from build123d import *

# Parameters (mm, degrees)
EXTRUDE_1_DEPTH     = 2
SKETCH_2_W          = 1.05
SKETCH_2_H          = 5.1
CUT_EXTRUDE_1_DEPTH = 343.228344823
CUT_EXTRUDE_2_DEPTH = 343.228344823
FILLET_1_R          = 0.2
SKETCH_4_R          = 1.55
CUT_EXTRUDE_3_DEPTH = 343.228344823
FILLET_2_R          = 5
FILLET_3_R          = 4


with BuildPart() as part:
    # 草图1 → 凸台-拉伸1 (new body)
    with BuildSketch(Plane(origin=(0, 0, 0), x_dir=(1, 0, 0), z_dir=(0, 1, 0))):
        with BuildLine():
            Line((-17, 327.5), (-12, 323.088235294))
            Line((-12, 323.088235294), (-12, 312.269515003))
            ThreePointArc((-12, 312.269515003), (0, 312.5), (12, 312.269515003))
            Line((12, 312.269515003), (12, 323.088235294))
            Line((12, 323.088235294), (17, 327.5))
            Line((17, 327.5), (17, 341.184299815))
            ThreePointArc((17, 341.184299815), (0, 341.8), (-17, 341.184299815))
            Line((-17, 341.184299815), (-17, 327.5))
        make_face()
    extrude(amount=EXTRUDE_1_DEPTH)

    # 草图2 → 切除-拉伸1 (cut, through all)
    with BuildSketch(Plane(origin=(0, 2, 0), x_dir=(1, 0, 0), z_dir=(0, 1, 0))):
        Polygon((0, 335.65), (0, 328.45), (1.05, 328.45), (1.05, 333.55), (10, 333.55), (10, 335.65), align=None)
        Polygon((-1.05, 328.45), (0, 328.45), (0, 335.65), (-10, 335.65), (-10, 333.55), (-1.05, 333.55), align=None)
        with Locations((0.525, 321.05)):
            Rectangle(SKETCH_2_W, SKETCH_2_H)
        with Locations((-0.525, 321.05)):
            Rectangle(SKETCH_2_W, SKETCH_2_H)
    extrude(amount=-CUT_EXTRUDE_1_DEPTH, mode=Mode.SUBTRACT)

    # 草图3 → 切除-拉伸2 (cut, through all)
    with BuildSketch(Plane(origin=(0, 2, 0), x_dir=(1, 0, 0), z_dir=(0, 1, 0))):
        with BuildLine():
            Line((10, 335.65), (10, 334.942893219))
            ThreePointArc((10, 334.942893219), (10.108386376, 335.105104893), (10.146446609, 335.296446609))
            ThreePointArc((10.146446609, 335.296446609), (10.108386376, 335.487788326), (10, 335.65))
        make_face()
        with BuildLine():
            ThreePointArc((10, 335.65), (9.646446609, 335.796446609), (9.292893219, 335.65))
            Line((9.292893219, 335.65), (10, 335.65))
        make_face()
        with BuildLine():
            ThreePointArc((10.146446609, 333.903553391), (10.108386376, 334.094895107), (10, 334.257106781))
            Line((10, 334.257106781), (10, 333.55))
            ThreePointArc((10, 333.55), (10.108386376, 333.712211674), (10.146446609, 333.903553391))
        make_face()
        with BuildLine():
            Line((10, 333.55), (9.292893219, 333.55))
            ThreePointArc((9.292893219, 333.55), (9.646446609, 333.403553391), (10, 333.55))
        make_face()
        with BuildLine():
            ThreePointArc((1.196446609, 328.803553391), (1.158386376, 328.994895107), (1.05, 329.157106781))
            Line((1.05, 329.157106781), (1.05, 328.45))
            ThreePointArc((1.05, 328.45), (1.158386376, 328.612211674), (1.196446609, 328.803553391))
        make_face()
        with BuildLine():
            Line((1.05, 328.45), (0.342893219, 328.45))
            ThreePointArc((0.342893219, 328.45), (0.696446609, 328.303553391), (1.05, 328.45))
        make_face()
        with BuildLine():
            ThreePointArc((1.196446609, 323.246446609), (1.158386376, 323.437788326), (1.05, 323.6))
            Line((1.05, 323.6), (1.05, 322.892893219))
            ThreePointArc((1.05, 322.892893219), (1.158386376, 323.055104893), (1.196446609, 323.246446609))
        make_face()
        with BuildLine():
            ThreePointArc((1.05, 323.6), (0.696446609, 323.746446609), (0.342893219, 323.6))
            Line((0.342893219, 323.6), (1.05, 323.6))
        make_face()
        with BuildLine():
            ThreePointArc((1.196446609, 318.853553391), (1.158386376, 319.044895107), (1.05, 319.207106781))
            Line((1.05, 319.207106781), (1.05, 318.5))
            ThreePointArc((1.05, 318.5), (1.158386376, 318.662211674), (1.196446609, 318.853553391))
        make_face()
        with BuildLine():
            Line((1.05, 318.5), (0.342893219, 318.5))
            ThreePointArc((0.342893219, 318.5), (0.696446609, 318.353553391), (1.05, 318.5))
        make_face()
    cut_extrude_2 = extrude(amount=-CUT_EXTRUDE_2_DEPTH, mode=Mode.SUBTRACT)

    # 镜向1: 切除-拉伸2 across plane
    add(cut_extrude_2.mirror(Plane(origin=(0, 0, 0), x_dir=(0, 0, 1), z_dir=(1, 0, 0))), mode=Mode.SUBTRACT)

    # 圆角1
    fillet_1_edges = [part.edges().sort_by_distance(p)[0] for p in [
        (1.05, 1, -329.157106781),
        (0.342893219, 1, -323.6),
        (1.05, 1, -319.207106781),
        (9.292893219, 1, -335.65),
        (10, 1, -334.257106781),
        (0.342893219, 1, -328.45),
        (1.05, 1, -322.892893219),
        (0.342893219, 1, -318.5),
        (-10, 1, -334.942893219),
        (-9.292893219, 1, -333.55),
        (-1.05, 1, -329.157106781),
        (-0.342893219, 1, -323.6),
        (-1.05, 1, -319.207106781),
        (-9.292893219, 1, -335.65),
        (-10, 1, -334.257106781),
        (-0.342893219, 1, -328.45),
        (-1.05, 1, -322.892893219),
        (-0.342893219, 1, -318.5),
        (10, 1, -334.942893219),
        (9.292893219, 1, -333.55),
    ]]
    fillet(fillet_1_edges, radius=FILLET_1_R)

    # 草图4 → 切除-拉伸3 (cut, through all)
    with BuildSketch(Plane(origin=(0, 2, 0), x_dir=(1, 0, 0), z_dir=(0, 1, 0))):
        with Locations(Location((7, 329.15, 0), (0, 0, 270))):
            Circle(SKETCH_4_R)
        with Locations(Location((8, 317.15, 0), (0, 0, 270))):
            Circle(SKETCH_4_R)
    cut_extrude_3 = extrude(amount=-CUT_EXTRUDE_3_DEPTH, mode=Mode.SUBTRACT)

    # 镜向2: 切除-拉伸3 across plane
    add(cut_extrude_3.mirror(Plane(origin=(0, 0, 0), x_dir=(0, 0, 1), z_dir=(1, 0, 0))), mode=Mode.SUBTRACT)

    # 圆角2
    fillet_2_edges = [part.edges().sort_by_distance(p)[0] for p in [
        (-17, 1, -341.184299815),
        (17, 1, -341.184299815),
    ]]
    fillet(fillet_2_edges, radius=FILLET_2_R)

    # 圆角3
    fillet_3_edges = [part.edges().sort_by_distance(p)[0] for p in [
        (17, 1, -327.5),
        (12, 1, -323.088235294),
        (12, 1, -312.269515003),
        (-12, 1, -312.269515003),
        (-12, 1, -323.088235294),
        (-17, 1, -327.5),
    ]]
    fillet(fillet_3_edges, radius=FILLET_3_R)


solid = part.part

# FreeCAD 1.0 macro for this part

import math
import FreeCAD as App
import Part
import Sketcher

V = App.Vector
Q = App.Units.Quantity


def edges_at(feature, points):
    """Names of the edges that pass closest to the given points."""
    edges = feature.Shape.Edges
    near = lambda p: min(range(len(edges)), key=lambda i: edges[i].distToShape(Part.Vertex(*p))[0])
    return sorted({f"Edge{near(p) + 1}" for p in points})


def add_polygon(sketch, points):
    """Adds a closed chain of lines whose ends are joined by coincident constraints."""
    first, n = sketch.GeometryCount, len(points)
    for a, b in zip(points, points[1:] + points[:1]):
        sketch.addGeometry(Part.LineSegment(App.Vector(*a, 0), App.Vector(*b, 0)), False)
    for i in range(n):
        sketch.addConstraint(Sketcher.Constraint("Coincident", first + i, 2, first + (i + 1) % n, 1))

doc = App.newDocument("Part")
params = doc.addObject("Spreadsheet::Sheet", "Params")
for row, (alias, value) in enumerate([
    ("sketch1_radius", "235 mm"),
    ("sketch1_radius2", "312.5 mm"),
    ("pad1_length", "2 mm"),
    ("sketch2_width", "20 mm"),
    ("sketch2_width2", "2.1 mm"),
    ("sketch2_height", "5.1 mm"),
    ("sketch3_radius", "0.5 mm"),
    ("fillet_radius", "0.2 mm"),
    ("sketch4_diameter", "3.1 mm"),
    ("fillet2_radius", "5 mm"),
    ("fillet3_radius", "4 mm"),
], start=1):
    params.set(f"A{row}", alias)
    params.set(f"B{row}", "=" + value)
    params.setAlias(f"B{row}", alias)

body = doc.addObject("PartDesign::Body", "Body")

# Sketch on XZ plane
sketch1 = doc.addObject("Sketcher::SketchObject", "Sketch")
body.addObject(sketch1)
sketch1.AttachmentSupport = (doc.XZ_Plane, [""])
sketch1.MapMode = "FlatFace"
sketch1.addGeometry([
    Part.LineSegment(V(-17, -327.5, 0), V(-12, -323.088235, 0)),  # 0
    Part.LineSegment(V(-12, -323.088235, 0), V(-12, -312.269515, 0)),  # 1
    Part.ArcOfCircle(Part.Circle(V(0, 0, 0), V(0, 0, 1), 312.5), math.radians(-92.200699), math.radians(-87.799301)),  # 2
    Part.LineSegment(V(12, -312.269515, 0), V(12, -323.088235, 0)),  # 3
    Part.LineSegment(V(12, -323.088235, 0), V(17, -327.5, 0)),  # 4
    Part.LineSegment(V(17, -327.5, 0), V(17, -341.1843, 0)),  # 5
    Part.ArcOfCircle(Part.Circle(V(0, -106.8, 0), V(0, 0, 1), 235), math.radians(-94.148425), math.radians(-85.851575)),  # 6
    Part.LineSegment(V(-17, -341.1843, 0), V(-17, -327.5, 0)),  # 7
], False)
sketch1.addConstraint([
    Sketcher.Constraint("Coincident", 0, 2, 1, 1),
    Sketcher.Constraint("Coincident", 1, 2, 2, 1),
    Sketcher.Constraint("Coincident", 2, 2, 3, 1),
    Sketcher.Constraint("Coincident", 3, 2, 4, 1),
    Sketcher.Constraint("Coincident", 4, 2, 5, 1),
    Sketcher.Constraint("Coincident", 5, 2, 6, 2),
    Sketcher.Constraint("Coincident", 6, 1, 7, 1),
    Sketcher.Constraint("Coincident", 7, 2, 0, 1),
    Sketcher.Constraint("Vertical", 1),
    Sketcher.Constraint("Vertical", 3),
    Sketcher.Constraint("Vertical", 5),
    Sketcher.Constraint("Vertical", 7),
    Sketcher.Constraint("Coincident", 2, 3, -1, 1),
    Sketcher.Constraint("Symmetric", 0, 2, 3, 2, -2),
    Sketcher.Constraint("Symmetric", 5, 2, 6, 1, -2),
    Sketcher.Constraint("Horizontal", 4, 2, 7, 2),
    Sketcher.Constraint("Radius", 6, Q("235 mm")),
    Sketcher.Constraint("Radius", 2, Q("312.5 mm")),
    Sketcher.Constraint("DistanceX", 0, 2, -1, 1, Q("12 mm")),
    Sketcher.Constraint("DistanceX", -1, 1, 4, 2, Q("17 mm")),
    Sketcher.Constraint("DistanceY", 6, 3, -1, 1, Q("106.8 mm")),
    Sketcher.Constraint("DistanceY", 4, 2, -1, 1, Q("327.5 mm")),
    Sketcher.Constraint("DistanceY", 1, 1, 1, 2, Q("10.81872 mm")),
])
sketch1.setExpression("Constraints[16]", "Params.sketch1_radius")
sketch1.setExpression("Constraints[17]", "Params.sketch1_radius2")
pad1 = doc.addObject("PartDesign::Pad", "Pad")
body.addObject(pad1)
pad1.Profile = sketch1
pad1.setExpression("Length", "Params.pad1_length")
pad1.Reversed = True

# Sketch on XZ plane
sketch2 = doc.addObject("Sketcher::SketchObject", "Sketch001")
body.addObject(sketch2)
sketch2.AttachmentSupport = (doc.XZ_Plane, [""])
sketch2.MapMode = "FlatFace"
sketch2.AttachmentOffset = App.Placement(V(0, 0, -2), App.Rotation())
add_polygon(sketch2, [(1.05, -328.45), (1.05, -333.55), (10, -333.55), (10, -335.65), (-10, -335.65), (-10, -333.55), (-1.05, -333.55), (-1.05, -328.45)])  # lines 0-7
add_polygon(sketch2, [(1.05, -318.5), (1.05, -323.6), (-1.05, -323.6), (-1.05, -318.5)])  # lines 8-11
sketch2.addConstraint([
    Sketcher.Constraint("Vertical", 0),
    Sketcher.Constraint("Horizontal", 1),
    Sketcher.Constraint("Vertical", 2),
    Sketcher.Constraint("Horizontal", 3),
    Sketcher.Constraint("Vertical", 4),
    Sketcher.Constraint("Horizontal", 5),
    Sketcher.Constraint("Vertical", 6),
    Sketcher.Constraint("Horizontal", 7),
    Sketcher.Constraint("Vertical", 8),
    Sketcher.Constraint("Horizontal", 9),
    Sketcher.Constraint("Vertical", 10),
    Sketcher.Constraint("Horizontal", 11),
    Sketcher.Constraint("Symmetric", 1, 2, 4, 2, -2),
    Sketcher.Constraint("Vertical", 7, 2, 8, 2),
    Sketcher.Constraint("Vertical", 6, 2, 9, 2),
    Sketcher.Constraint("Equal", 1, 5),
    Sketcher.Constraint("Equal", 11, 2),
    Sketcher.Constraint("Equal", 6, 8),
    Sketcher.Constraint("DistanceX", 3, 2, 3, 1, Q("20 mm")),
    Sketcher.Constraint("DistanceX", 7, 1, 7, 2, Q("2.1 mm")),
    Sketcher.Constraint("DistanceY", 0, 2, 0, 1, Q("5.1 mm")),
    Sketcher.Constraint("DistanceY", 8, 2, -1, 1, Q("323.6 mm")),
    Sketcher.Constraint("DistanceY", 0, 2, -1, 1, Q("333.55 mm")),
])
sketch2.setExpression("Constraints[30]", "Params.sketch2_width")
sketch2.setExpression("Constraints[31]", "Params.sketch2_width2")
sketch2.setExpression("Constraints[32]", "Params.sketch2_height")
pocket1 = doc.addObject("PartDesign::Pocket", "Pocket")
body.addObject(pocket1)
pocket1.Profile = sketch2
pocket1.Type = "ThroughAll"
pocket1.Reversed = True

# Sketch on XZ plane
sketch3 = doc.addObject("Sketcher::SketchObject", "Sketch002")
body.addObject(sketch3)
sketch3.AttachmentSupport = (doc.XZ_Plane, [""])
sketch3.MapMode = "FlatFace"
sketch3.AttachmentOffset = App.Placement(V(0, 0, -2), App.Rotation())
sketch3.addGeometry([
    Part.LineSegment(V(10, -335.65, 0), V(10, -334.942893, 0)),  # 0
    Part.ArcOfCircle(Part.Circle(V(9.646447, -335.296447, 0), V(0, 0, 1), 0.5), math.radians(0), math.radians(45)),  # 1
    Part.ArcOfCircle(Part.Circle(V(9.646447, -335.296447, 0), V(0, 0, 1), 0.5), math.radians(-45), math.radians(0)),  # 2
    Part.ArcOfCircle(Part.Circle(V(9.646447, -335.296447, 0), V(0, 0, 1), 0.5), math.radians(-135), math.radians(-45)),  # 3
    Part.LineSegment(V(9.292893, -335.65, 0), V(10, -335.65, 0)),  # 4
    Part.ArcOfCircle(Part.Circle(V(9.646447, -333.903553, 0), V(0, 0, 1), 0.5), math.radians(-45), math.radians(0)),  # 5
    Part.LineSegment(V(10, -334.257107, 0), V(10, -333.55, 0)),  # 6
    Part.ArcOfCircle(Part.Circle(V(9.646447, -333.903553, 0), V(0, 0, 1), 0.5), math.radians(0), math.radians(45)),  # 7
    Part.LineSegment(V(10, -333.55, 0), V(9.292893, -333.55, 0)),  # 8
    Part.ArcOfCircle(Part.Circle(V(9.646447, -333.903553, 0), V(0, 0, 1), 0.5), math.radians(45), math.radians(135)),  # 9
    Part.ArcOfCircle(Part.Circle(V(0.696447, -328.803553, 0), V(0, 0, 1), 0.5), math.radians(-45), math.radians(0)),  # 10
    Part.LineSegment(V(1.05, -329.157107, 0), V(1.05, -328.45, 0)),  # 11
    Part.ArcOfCircle(Part.Circle(V(0.696447, -328.803553, 0), V(0, 0, 1), 0.5), math.radians(0), math.radians(45)),  # 12
    Part.LineSegment(V(1.05, -328.45, 0), V(0.342893, -328.45, 0)),  # 13
    Part.ArcOfCircle(Part.Circle(V(0.696447, -328.803553, 0), V(0, 0, 1), 0.5), math.radians(45), math.radians(135)),  # 14
    Part.ArcOfCircle(Part.Circle(V(0.696447, -323.246447, 0), V(0, 0, 1), 0.5), math.radians(-45), math.radians(0)),  # 15
    Part.LineSegment(V(1.05, -323.6, 0), V(1.05, -322.892893, 0)),  # 16
    Part.ArcOfCircle(Part.Circle(V(0.696447, -323.246447, 0), V(0, 0, 1), 0.5), math.radians(0), math.radians(45)),  # 17
    Part.ArcOfCircle(Part.Circle(V(0.696447, -323.246447, 0), V(0, 0, 1), 0.5), math.radians(-135), math.radians(-45)),  # 18
    Part.LineSegment(V(0.342893, -323.6, 0), V(1.05, -323.6, 0)),  # 19
    Part.ArcOfCircle(Part.Circle(V(0.696447, -318.853553, 0), V(0, 0, 1), 0.5), math.radians(-45), math.radians(0)),  # 20
    Part.LineSegment(V(1.05, -319.207107, 0), V(1.05, -318.5, 0)),  # 21
    Part.ArcOfCircle(Part.Circle(V(0.696447, -318.853553, 0), V(0, 0, 1), 0.5), math.radians(0), math.radians(45)),  # 22
    Part.LineSegment(V(1.05, -318.5, 0), V(0.342893, -318.5, 0)),  # 23
    Part.ArcOfCircle(Part.Circle(V(0.696447, -318.853553, 0), V(0, 0, 1), 0.5), math.radians(45), math.radians(135)),  # 24
], False)
sketch3.addConstraint([
    Sketcher.Constraint("Coincident", 0, 2, 1, 2),
    Sketcher.Constraint("Tangent", 1, 1, 2, 2),
    Sketcher.Constraint("Coincident", 2, 1, 0, 1),
    Sketcher.Constraint("Coincident", 3, 1, 4, 1),
    Sketcher.Constraint("Coincident", 4, 2, 3, 2),
    Sketcher.Constraint("Coincident", 5, 1, 6, 1),
    Sketcher.Constraint("Coincident", 6, 2, 7, 2),
    Sketcher.Constraint("Tangent", 7, 1, 5, 2),
    Sketcher.Constraint("Coincident", 8, 1, 9, 1),
    Sketcher.Constraint("Coincident", 9, 2, 8, 2),
    Sketcher.Constraint("Coincident", 10, 1, 11, 1),
    Sketcher.Constraint("Coincident", 11, 2, 12, 2),
    Sketcher.Constraint("Tangent", 12, 1, 10, 2),
    Sketcher.Constraint("Coincident", 13, 1, 14, 1),
    Sketcher.Constraint("Coincident", 14, 2, 13, 2),
    Sketcher.Constraint("Coincident", 15, 1, 16, 1),
    Sketcher.Constraint("Coincident", 16, 2, 17, 2),
    Sketcher.Constraint("Tangent", 17, 1, 15, 2),
    Sketcher.Constraint("Coincident", 18, 1, 19, 1),
    Sketcher.Constraint("Coincident", 19, 2, 18, 2),
    Sketcher.Constraint("Coincident", 20, 1, 21, 1),
    Sketcher.Constraint("Coincident", 21, 2, 22, 2),
    Sketcher.Constraint("Tangent", 22, 1, 20, 2),
    Sketcher.Constraint("Coincident", 23, 1, 24, 1),
    Sketcher.Constraint("Coincident", 24, 2, 23, 2),
    Sketcher.Constraint("Vertical", 0),
    Sketcher.Constraint("Horizontal", 4),
    Sketcher.Constraint("Vertical", 6),
    Sketcher.Constraint("Horizontal", 8),
    Sketcher.Constraint("Vertical", 11),
    Sketcher.Constraint("Horizontal", 13),
    Sketcher.Constraint("Vertical", 16),
    Sketcher.Constraint("Horizontal", 19),
    Sketcher.Constraint("Vertical", 21),
    Sketcher.Constraint("Horizontal", 23),
    Sketcher.Constraint("Coincident", 3, 3, 1, 3),
    Sketcher.Constraint("Coincident", 9, 3, 5, 3),
    Sketcher.Constraint("Coincident", 14, 3, 10, 3),
    Sketcher.Constraint("Coincident", 18, 3, 15, 3),
    Sketcher.Constraint("Coincident", 24, 3, 20, 3),
    Sketcher.Constraint("Coincident", 4, 2, 2, 1),
    Sketcher.Constraint("Coincident", 8, 1, 6, 2),
    Sketcher.Constraint("Coincident", 13, 1, 11, 2),
    Sketcher.Constraint("Coincident", 19, 2, 15, 1),
    Sketcher.Constraint("Coincident", 23, 1, 21, 2),
    Sketcher.Constraint("Equal", 1, 2),
    Sketcher.Constraint("Equal", 3, 5),
    Sketcher.Constraint("Equal", 5, 7),
    Sketcher.Constraint("Equal", 9, 10),
    Sketcher.Constraint("Equal", 10, 12),
    Sketcher.Constraint("Equal", 14, 15),
    Sketcher.Constraint("Equal", 15, 17),
    Sketcher.Constraint("Equal", 18, 20),
    Sketcher.Constraint("Equal", 20, 22),
    Sketcher.Constraint("Horizontal", 3, 3, 1, 1),
    Sketcher.Constraint("Horizontal", 9, 3, 7, 1),
    Sketcher.Constraint("Horizontal", 14, 3, 12, 1),
    Sketcher.Constraint("Horizontal", 18, 3, 17, 1),
    Sketcher.Constraint("Horizontal", 24, 3, 22, 1),
    Sketcher.Constraint("Vertical", 3, 3, 5, 3),
    Sketcher.Constraint("Vertical", 14, 3, 15, 3),
    Sketcher.Constraint("Vertical", 18, 3, 20, 3),
    Sketcher.Constraint("Vertical", 4, 2, 5, 1),
    Sketcher.Constraint("Vertical", 13, 1, 15, 1),
    Sketcher.Constraint("Vertical", 19, 2, 20, 1),
    Sketcher.Constraint("Equal", 8, 13),
    Sketcher.Constraint("Equal", 23, 0),
    Sketcher.Constraint("Radius", 1, Q("0.5 mm")),
    Sketcher.Constraint("DistanceX", -1, 1, 0, 2, Q("10 mm")),
    Sketcher.Constraint("DistanceY", 15, 1, -1, 1, Q("323.6 mm")),
    Sketcher.Constraint("DistanceY", 21, 2, -1, 1, Q("318.5 mm")),
    Sketcher.Constraint("DistanceY", 9, 3, 10, 3, Q("5.1 mm")),
    Sketcher.Constraint("DistanceY", 2, 1, -1, 1, Q("335.65 mm")),
    Sketcher.Constraint("DistanceY", 6, 2, -1, 1, Q("333.55 mm")),
    Sketcher.Constraint("DistanceX", -1, 1, 10, 1, Q("1.05 mm")),
])
sketch3.setExpression("Constraints[67]", "Params.sketch3_radius")
pocket2 = doc.addObject("PartDesign::Pocket", "Pocket001")
body.addObject(pocket2)
pocket2.Profile = sketch3
pocket2.Type = "ThroughAll"
pocket2.Reversed = True
doc.recompute()

mirrored = doc.addObject("PartDesign::Mirrored", "Mirrored")
body.addObject(mirrored)
mirrored.Originals = [pocket2]
mirrored.MirrorPlane = (doc.YZ_Plane, [""])
body.Tip = mirrored
doc.recompute()

fillet = doc.addObject("PartDesign::Fillet", "Fillet")
body.addObject(fillet)
fillet.Base = (mirrored, edges_at(mirrored, [
    (1.05, 1, -329.157),
    (0.343, 1, -323.6),
    (1.05, 1, -319.207),
    (9.293, 1, -335.65),
    (10, 1, -334.257),
    (0.343, 1, -328.45),
    (1.05, 1, -322.893),
    (0.343, 1, -318.5),
    (-10, 1, -334.943),
    (-9.293, 1, -333.55),
    (-1.05, 1, -329.157),
    (-0.343, 1, -323.6),
    (-1.05, 1, -319.207),
    (-9.293, 1, -335.65),
    (-10, 1, -334.257),
    (-0.343, 1, -328.45),
    (-1.05, 1, -322.893),
    (-0.343, 1, -318.5),
    (10, 1, -334.943),
    (9.293, 1, -333.55),
]))
fillet.setExpression("Radius", "Params.fillet_radius")

# Sketch on XZ plane
sketch4 = doc.addObject("Sketcher::SketchObject", "Sketch003")
body.addObject(sketch4)
sketch4.AttachmentSupport = (doc.XZ_Plane, [""])
sketch4.MapMode = "FlatFace"
sketch4.AttachmentOffset = App.Placement(V(0, 0, -2), App.Rotation())
sketch4.addGeometry([
    Part.Circle(V(7, -329.15, 0), V(0, 0, 1), 1.55),
    Part.Circle(V(8, -317.15, 0), V(0, 0, 1), 1.55),
], False)
sketch4.addConstraint([
    Sketcher.Constraint("Equal", 0, 1),
    Sketcher.Constraint("Diameter", 0, Q("3.1 mm")),
    Sketcher.Constraint("DistanceX", -1, 1, 0, 3, Q("7 mm")),
    Sketcher.Constraint("DistanceX", -1, 1, 1, 3, Q("8 mm")),
    Sketcher.Constraint("DistanceY", 0, 3, 1, 3, Q("12 mm")),
    Sketcher.Constraint("DistanceY", 0, 3, -1, 1, Q("329.15 mm")),
])
sketch4.setExpression("Constraints[1]", "Params.sketch4_diameter")
pocket3 = doc.addObject("PartDesign::Pocket", "Pocket002")
body.addObject(pocket3)
pocket3.Profile = sketch4
pocket3.Type = "ThroughAll"
pocket3.Reversed = True
doc.recompute()

mirrored2 = doc.addObject("PartDesign::Mirrored", "Mirrored001")
body.addObject(mirrored2)
mirrored2.Originals = [pocket3]
mirrored2.MirrorPlane = (doc.YZ_Plane, [""])
body.Tip = mirrored2
doc.recompute()

fillet2 = doc.addObject("PartDesign::Fillet", "Fillet001")
body.addObject(fillet2)
fillet2.Base = (mirrored2, edges_at(mirrored2, [(-17, 1, -341.184), (17, 1, -341.184)]))
fillet2.setExpression("Radius", "Params.fillet2_radius")
doc.recompute()

fillet3 = doc.addObject("PartDesign::Fillet", "Fillet002")
body.addObject(fillet3)
fillet3.Base = (fillet2, edges_at(fillet2, [
    (17, 1, -327.5),
    (12, 1, -323.088),
    (12, 1, -312.27),
    (-12, 1, -312.27),
    (-12, 1, -323.088),
    (-17, 1, -327.5),
]))
fillet3.setExpression("Radius", "Params.fillet3_radius")

doc.recompute()
